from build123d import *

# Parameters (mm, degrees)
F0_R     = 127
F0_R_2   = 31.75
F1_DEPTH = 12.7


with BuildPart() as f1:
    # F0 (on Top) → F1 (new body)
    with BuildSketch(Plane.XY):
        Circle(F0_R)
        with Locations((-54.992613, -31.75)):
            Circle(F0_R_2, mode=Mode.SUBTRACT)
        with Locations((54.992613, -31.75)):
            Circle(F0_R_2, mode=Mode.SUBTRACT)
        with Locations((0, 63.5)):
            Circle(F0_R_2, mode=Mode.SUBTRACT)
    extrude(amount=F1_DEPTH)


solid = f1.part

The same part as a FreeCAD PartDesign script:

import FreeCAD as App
import Part
import Sketcher

V = App.Vector
Q = App.Units.Quantity

doc = App.newDocument("Part")
body = doc.addObject("PartDesign::Body", "Body")

# Sketch on XY plane
sketch1 = body.newObject("Sketcher::SketchObject", "Sketch")
sketch1.AttachmentSupport = (doc.getObject("XY_Plane"), [""])
sketch1.MapMode = "FlatFace"
sketch1.addGeometry([
    Part.Circle(V(0, 0, 0), V(0, 0, 1), 127),
    Part.Circle(V(-55, -32, 0), V(0, 0, 1), 32),
    Part.Circle(V(55, -32, 0), V(0, 0, 1), 32),
    Part.Circle(V(0, 64, 0), V(0, 0, 1), 32),
], False)
sketch1.addConstraint([
    Sketcher.Constraint("Coincident", 0, 3, -1, 1),
    Sketcher.Constraint("Equal", 1, 2),
    Sketcher.Constraint("Equal", 2, 3),
    Sketcher.Constraint("Symmetric", 1, 3, 2, 3, -2),
    Sketcher.Constraint("PointOnObject", 3, 3, -2),
    Sketcher.Constraint("Diameter", 0, Q("10 in")),
    Sketcher.Constraint("Diameter", 1, Q("2.5 in")),
    Sketcher.Constraint("DistanceY", -1, 1, 3, 3, Q("2.5 in")),
    Sketcher.Constraint("DistanceY", 1, 3, -1, 1, Q("1.25 in")),
    Sketcher.Constraint("DistanceX", 1, 3, -1, 1, 54.992613),
])
pad1 = body.newObject("PartDesign::Pad", "Pad")
pad1.Profile = sketch1
pad1.Length = Q("0.5 in")

doc.recompute()
